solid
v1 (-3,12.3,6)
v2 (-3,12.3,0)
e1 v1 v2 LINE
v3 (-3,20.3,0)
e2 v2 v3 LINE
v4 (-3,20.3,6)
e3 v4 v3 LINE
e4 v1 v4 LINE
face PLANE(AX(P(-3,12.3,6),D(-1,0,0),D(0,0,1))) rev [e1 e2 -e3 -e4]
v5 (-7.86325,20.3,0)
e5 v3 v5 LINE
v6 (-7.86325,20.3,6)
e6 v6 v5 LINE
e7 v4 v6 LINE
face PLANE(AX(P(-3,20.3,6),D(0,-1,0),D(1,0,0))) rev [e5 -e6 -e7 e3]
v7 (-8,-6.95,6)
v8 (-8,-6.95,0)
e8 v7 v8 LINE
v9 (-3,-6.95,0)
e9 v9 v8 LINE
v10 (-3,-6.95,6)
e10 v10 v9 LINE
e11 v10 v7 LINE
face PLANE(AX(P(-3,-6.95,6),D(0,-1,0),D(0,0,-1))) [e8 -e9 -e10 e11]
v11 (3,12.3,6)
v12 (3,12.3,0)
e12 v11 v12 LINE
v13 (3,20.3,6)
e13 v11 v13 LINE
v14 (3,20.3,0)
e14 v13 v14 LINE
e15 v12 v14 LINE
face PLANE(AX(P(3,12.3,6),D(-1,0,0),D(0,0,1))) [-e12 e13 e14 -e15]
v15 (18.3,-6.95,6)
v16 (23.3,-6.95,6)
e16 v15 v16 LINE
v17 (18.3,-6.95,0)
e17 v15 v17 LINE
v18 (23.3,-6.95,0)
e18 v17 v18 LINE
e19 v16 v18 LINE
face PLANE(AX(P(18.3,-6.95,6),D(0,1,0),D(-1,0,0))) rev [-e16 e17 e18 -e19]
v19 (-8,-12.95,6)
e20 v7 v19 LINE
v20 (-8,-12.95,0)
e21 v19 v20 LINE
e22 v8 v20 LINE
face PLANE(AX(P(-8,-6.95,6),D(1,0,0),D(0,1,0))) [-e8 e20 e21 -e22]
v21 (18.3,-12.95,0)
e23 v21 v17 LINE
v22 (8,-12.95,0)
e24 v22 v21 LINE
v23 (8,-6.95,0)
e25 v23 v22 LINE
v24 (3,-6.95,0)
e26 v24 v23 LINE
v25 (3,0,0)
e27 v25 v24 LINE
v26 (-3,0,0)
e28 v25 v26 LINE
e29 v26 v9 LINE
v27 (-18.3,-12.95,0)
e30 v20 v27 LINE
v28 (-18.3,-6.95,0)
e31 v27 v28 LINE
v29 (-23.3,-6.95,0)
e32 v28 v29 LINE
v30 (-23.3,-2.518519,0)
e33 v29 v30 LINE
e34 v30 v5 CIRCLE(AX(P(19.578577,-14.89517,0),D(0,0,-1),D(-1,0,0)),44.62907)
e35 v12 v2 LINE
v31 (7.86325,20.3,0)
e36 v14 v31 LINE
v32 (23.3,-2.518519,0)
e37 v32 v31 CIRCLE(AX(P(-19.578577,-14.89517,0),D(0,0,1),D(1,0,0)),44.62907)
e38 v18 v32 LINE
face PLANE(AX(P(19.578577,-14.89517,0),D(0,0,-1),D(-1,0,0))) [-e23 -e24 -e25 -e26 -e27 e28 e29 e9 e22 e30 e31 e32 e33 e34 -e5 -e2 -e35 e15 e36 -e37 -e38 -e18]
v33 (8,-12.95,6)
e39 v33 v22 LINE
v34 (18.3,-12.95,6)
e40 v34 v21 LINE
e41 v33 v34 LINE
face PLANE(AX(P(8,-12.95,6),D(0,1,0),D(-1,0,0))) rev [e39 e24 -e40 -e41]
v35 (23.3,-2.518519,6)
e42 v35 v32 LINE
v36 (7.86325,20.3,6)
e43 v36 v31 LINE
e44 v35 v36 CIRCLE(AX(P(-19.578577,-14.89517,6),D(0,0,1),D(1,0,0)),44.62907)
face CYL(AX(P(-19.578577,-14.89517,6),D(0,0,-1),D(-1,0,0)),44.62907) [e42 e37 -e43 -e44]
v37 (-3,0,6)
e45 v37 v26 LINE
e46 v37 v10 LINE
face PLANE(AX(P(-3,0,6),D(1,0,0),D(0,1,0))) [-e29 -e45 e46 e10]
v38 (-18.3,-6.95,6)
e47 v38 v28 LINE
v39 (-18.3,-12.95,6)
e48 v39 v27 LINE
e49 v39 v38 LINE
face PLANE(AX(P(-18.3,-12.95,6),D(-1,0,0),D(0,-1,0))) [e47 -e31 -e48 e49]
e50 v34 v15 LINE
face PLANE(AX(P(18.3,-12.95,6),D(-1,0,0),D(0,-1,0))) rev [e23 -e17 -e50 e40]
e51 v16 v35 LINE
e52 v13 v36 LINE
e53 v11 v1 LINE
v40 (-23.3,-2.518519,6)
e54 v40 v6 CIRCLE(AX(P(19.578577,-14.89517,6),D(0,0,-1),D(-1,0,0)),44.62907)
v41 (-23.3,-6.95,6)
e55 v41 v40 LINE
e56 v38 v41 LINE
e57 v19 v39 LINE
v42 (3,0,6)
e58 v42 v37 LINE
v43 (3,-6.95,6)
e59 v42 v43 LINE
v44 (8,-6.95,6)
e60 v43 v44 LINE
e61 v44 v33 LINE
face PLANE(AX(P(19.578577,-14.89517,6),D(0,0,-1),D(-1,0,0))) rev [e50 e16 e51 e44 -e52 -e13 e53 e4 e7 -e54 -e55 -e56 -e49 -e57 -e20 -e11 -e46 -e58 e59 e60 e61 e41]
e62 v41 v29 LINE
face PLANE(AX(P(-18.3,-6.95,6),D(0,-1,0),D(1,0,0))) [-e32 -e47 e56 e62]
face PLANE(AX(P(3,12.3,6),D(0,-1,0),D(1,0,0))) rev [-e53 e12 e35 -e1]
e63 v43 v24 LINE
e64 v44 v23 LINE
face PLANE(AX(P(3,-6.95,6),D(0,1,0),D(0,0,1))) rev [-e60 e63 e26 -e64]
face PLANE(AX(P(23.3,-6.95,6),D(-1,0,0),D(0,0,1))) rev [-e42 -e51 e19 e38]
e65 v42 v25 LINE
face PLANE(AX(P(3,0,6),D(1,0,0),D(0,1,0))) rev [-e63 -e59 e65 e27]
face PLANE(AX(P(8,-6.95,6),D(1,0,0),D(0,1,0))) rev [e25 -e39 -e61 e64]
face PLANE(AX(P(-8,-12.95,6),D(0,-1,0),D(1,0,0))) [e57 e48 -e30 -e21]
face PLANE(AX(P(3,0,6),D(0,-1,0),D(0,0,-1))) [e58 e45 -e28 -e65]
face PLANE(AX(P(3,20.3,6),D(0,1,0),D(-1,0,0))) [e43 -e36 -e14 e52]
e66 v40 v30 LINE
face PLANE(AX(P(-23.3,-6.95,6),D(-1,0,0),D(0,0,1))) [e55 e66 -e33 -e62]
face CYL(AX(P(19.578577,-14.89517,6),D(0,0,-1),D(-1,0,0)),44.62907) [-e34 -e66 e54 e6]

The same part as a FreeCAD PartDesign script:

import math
import FreeCAD as App
import Part
import Sketcher
from FreeCAD import Vector
Q = App.Units.Quantity

doc = App.newDocument("Part")
params = doc.addObject("Spreadsheet::Sheet", "Params")
for row, (alias, value) in enumerate([
    ("sketch1_width", "6 mm"),
    ("sketch1_width2", "5 mm"),
    ("sketch1_height", "8 mm"),
    ("sketch1_width3", "10.3 mm"),
    ("sketch1_height2", "6.95 mm"),
    ("pad1_length", "6 mm"),
], start=1):
    params.set(f"A{row}", alias)
    params.set(f"B{row}", "=" + value)
    params.setAlias(f"B{row}", alias)

body = doc.addObject("PartDesign::Body", "Body")

sketch1 = body.newObject("Sketcher::SketchObject", "Sketch")
sketch1.AttachmentSupport = (doc.getObject("XY_Plane"), [""])
sketch1.MapMode = "FlatFace"
sketch1.addGeometry([
    Part.LineSegment(Vector(-3, 0, 0), Vector(3, 0, 0)),
    Part.LineSegment(Vector(3, 0, 0), Vector(3, -7, 0)),
    Part.LineSegment(Vector(3, -7, 0), Vector(8, -7, 0)),
    Part.LineSegment(Vector(8, -7, 0), Vector(8, -12.9, 0)),
    Part.LineSegment(Vector(8, -12.9, 0), Vector(18.3, -12.9, 0)),
    Part.LineSegment(Vector(18.3, -12.9, 0), Vector(18.3, -7, 0)),
    Part.LineSegment(Vector(18.3, -7, 0), Vector(23.3, -7, 0)),
    Part.LineSegment(Vector(23.3, -7, 0), Vector(23.3, -2.5, 0)),
    Part.ArcOfCircle(Part.Circle(Vector(-19.6, -14.9, 0), Vector(0, 0, 1), 44.6), math.radians(16), math.radians(52)),
    Part.LineSegment(Vector(7.9, 20.3, 0), Vector(3, 20.3, 0)),
    Part.LineSegment(Vector(3, 20.3, 0), Vector(3, 12.3, 0)),
    Part.LineSegment(Vector(3, 12.3, 0), Vector(-3, 12.3, 0)),
    Part.LineSegment(Vector(-3, 12.3, 0), Vector(-3, 20.3, 0)),
    Part.LineSegment(Vector(-3, 20.3, 0), Vector(-7.9, 20.3, 0)),
    Part.ArcOfCircle(Part.Circle(Vector(19.6, -14.9, 0), Vector(0, 0, 1), 44.6), math.radians(128), math.radians(164)),
    Part.LineSegment(Vector(-23.3, -2.5, 0), Vector(-23.3, -7, 0)),
    Part.LineSegment(Vector(-23.3, -7, 0), Vector(-18.3, -7, 0)),
    Part.LineSegment(Vector(-18.3, -7, 0), Vector(-18.3, -12.9, 0)),
    Part.LineSegment(Vector(-18.3, -12.9, 0), Vector(-8, -12.9, 0)),
    Part.LineSegment(Vector(-8, -12.9, 0), Vector(-8, -7, 0)),
    Part.LineSegment(Vector(-8, -7, 0), Vector(-3, -7, 0)),
    Part.LineSegment(Vector(-3, -7, 0), Vector(-3, 0, 0)),
], False)
sketch1.addConstraint([
    Sketcher.Constraint("Coincident", 0, 2, 1, 1),
    Sketcher.Constraint("Coincident", 1, 2, 2, 1),
    Sketcher.Constraint("Coincident", 2, 2, 3, 1),
    Sketcher.Constraint("Coincident", 3, 2, 4, 1),
    Sketcher.Constraint("Coincident", 4, 2, 5, 1),
    Sketcher.Constraint("Coincident", 5, 2, 6, 1),
    Sketcher.Constraint("Coincident", 6, 2, 7, 1),
    Sketcher.Constraint("Coincident", 7, 2, 8, 1),
    Sketcher.Constraint("Coincident", 8, 2, 9, 1),
    Sketcher.Constraint("Coincident", 9, 2, 10, 1),
    Sketcher.Constraint("Coincident", 10, 2, 11, 1),
    Sketcher.Constraint("Coincident", 11, 2, 12, 1),
    Sketcher.Constraint("Coincident", 12, 2, 13, 1),
    Sketcher.Constraint("Coincident", 13, 2, 14, 1),
    Sketcher.Constraint("Coincident", 14, 2, 15, 1),
    Sketcher.Constraint("Coincident", 15, 2, 16, 1),
    Sketcher.Constraint("Coincident", 16, 2, 17, 1),
    Sketcher.Constraint("Coincident", 17, 2, 18, 1),
    Sketcher.Constraint("Coincident", 18, 2, 19, 1),
    Sketcher.Constraint("Coincident", 19, 2, 20, 1),
    Sketcher.Constraint("Coincident", 20, 2, 21, 1),
    Sketcher.Constraint("Coincident", 21, 2, 0, 1),
    Sketcher.Constraint("Horizontal", 0),
    Sketcher.Constraint("Vertical", 1),
    Sketcher.Constraint("Horizontal", 2),
    Sketcher.Constraint("Vertical", 3),
    Sketcher.Constraint("Horizontal", 4),
    Sketcher.Constraint("Vertical", 5),
    Sketcher.Constraint("Horizontal", 6),
    Sketcher.Constraint("Vertical", 7),
    Sketcher.Constraint("Horizontal", 9),
    Sketcher.Constraint("Vertical", 10),
    Sketcher.Constraint("Horizontal", 11),
    Sketcher.Constraint("Vertical", 12),
    Sketcher.Constraint("Horizontal", 13),
    Sketcher.Constraint("Vertical", 15),
    Sketcher.Constraint("Horizontal", 16),
    Sketcher.Constraint("Vertical", 17),
    Sketcher.Constraint("Horizontal", 18),
    Sketcher.Constraint("Vertical", 19),
    Sketcher.Constraint("Horizontal", 20),
    Sketcher.Constraint("Vertical", 21),
    Sketcher.Constraint("Equal", 8, 14),
    Sketcher.Constraint("Symmetric", 0, 2, 21, 2, -1, 1),
    Sketcher.Constraint("Symmetric", 8, 3, 14, 3, -2),
    Sketcher.Constraint("Symmetric", 9, 2, 12, 2, -2),
    Sketcher.Constraint("Symmetric", 6, 2, 15, 2, -2),
    Sketcher.Constraint("Symmetric", 4, 2, 17, 2, -2),
    Sketcher.Constraint("Symmetric", 2, 2, 19, 2, -2),
    Sketcher.Constraint("Horizontal", 2, 2, 5, 2),
    Sketcher.Constraint("Vertical", 1, 2, 9, 2),
    Sketcher.Constraint("Equal", 2, 6),
    Sketcher.Constraint("Equal", 11, 3),
    Sketcher.Constraint("DistanceX", 0, 1, 0, 2, Q("6 mm")),
    Sketcher.Constraint("DistanceX", 2, 1, 2, 2, Q("5 mm")),
    Sketcher.Constraint("DistanceY", 10, 2, 10, 1, Q("8 mm")),
    Sketcher.Constraint("DistanceX", 4, 1, 4, 2, Q("10.3 mm")),
    Sketcher.Constraint("DistanceY", 1, 2, 1, 1, Q("6.95 mm")),
    Sketcher.Constraint("DistanceY", -1, 1, 8, 2, Q("20.3 mm")),
    Sketcher.Constraint("Radius", 8, Q("44.62907 mm")),
    Sketcher.Constraint("DistanceX", 9, 2, 9, 1, Q("4.86325 mm")),
    Sketcher.Constraint("DistanceY", 7, 1, 7, 2, Q("4.431481 mm")),
])
sketch1.setExpression("Constraints[53]", "Params.sketch1_width")
sketch1.setExpression("Constraints[54]", "Params.sketch1_width2")
sketch1.setExpression("Constraints[55]", "Params.sketch1_height")
sketch1.setExpression("Constraints[56]", "Params.sketch1_width3")
sketch1.setExpression("Constraints[57]", "Params.sketch1_height2")
pad1 = body.newObject("PartDesign::Pad", "Pad")
pad1.Profile = sketch1
pad1.setExpression("Length", "Params.pad1_length")

doc.recompute()
